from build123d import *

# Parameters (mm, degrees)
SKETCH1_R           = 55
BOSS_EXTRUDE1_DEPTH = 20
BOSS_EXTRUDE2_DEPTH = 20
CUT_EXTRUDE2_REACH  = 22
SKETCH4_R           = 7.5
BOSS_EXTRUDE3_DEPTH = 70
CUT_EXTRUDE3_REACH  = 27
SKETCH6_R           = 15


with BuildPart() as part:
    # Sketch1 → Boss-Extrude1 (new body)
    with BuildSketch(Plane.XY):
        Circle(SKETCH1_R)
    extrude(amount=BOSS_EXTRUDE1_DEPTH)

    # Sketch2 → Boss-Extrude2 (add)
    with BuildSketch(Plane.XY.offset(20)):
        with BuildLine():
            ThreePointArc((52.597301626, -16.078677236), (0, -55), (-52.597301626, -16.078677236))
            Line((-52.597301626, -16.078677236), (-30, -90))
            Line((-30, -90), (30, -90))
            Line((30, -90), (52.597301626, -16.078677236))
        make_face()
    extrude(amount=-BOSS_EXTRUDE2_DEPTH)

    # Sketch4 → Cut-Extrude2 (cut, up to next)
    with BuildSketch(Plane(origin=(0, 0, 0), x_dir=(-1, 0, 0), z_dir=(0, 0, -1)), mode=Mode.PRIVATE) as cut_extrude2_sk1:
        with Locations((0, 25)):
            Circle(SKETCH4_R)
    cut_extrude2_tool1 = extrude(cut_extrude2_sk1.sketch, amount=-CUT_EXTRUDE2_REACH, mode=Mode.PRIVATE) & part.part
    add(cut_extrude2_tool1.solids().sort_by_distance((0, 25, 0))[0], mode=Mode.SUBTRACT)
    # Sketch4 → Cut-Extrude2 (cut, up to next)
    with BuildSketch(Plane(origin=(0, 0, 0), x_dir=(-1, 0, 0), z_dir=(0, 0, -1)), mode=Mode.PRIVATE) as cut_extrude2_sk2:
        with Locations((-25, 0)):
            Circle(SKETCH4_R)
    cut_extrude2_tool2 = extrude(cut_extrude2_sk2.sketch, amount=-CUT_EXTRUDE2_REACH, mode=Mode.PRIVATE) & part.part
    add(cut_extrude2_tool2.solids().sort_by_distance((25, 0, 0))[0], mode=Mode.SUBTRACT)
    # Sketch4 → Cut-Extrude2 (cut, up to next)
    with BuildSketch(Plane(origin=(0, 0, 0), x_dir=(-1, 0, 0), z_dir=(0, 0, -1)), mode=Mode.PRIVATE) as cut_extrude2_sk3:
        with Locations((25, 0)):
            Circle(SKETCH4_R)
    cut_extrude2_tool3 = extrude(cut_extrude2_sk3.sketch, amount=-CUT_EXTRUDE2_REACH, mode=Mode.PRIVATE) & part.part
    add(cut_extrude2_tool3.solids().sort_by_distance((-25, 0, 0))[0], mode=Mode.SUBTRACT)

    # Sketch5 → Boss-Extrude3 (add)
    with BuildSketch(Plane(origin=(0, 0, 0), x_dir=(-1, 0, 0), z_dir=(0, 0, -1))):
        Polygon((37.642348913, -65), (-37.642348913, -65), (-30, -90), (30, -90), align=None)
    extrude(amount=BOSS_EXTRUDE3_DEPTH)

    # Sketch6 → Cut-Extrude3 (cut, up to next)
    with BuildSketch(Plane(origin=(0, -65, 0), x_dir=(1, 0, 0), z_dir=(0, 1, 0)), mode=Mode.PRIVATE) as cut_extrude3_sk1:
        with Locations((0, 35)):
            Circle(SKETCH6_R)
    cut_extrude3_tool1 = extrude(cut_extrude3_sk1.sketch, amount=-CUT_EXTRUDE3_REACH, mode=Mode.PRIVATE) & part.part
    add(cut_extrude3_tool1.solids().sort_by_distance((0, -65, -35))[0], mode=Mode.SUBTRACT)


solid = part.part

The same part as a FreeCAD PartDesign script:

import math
import FreeCAD as App
import Part
import Sketcher
Q = App.Units.Quantity

doc = App.newDocument("Part")
body = doc.addObject("PartDesign::Body", "Body")

sketch1 = body.newObject("Sketcher::SketchObject", "Sketch")
sketch1.AttachmentSupport = (doc.getObject("XY_Plane"), [""])
sketch1.MapMode = "FlatFace"
sketch1.addGeometry(Part.Circle(App.Vector(0, 0, 0), App.Vector(0, 0, 1), 55), False)
sketch1.addConstraint([
    Sketcher.Constraint("Coincident", 0, 3, -1, 1),
    Sketcher.Constraint("Diameter", 0, Q("110 mm")),
])
pad1 = body.newObject("PartDesign::Pad", "Pad")
pad1.Profile = sketch1
pad1.Length = 20

sketch2 = body.newObject("Sketcher::SketchObject", "Sketch001")
sketch2.AttachmentSupport = (doc.getObject("XY_Plane"), [""])
sketch2.MapMode = "FlatFace"
sketch2.AttachmentOffset = App.Placement(App.Vector(0, 0, 20), App.Rotation())
sketch2.addGeometry([
    Part.ArcOfCircle(Part.Circle(App.Vector(0, 0, 0), App.Vector(0, 0, 1), 55), math.radians(-163), math.radians(-17)),
    Part.LineSegment(App.Vector(-53, -16, 0), App.Vector(-30, -90, 0)),
    Part.LineSegment(App.Vector(-30, -90, 0), App.Vector(30, -90, 0)),
    Part.LineSegment(App.Vector(30, -90, 0), App.Vector(53, -16, 0)),
], False)
sketch2.addConstraint([
    Sketcher.Constraint("Tangent", 0, 1, 1, 1),
    Sketcher.Constraint("Coincident", 1, 2, 2, 1),
    Sketcher.Constraint("Coincident", 2, 2, 3, 1),
    Sketcher.Constraint("Tangent", 3, 2, 0, 2),
    Sketcher.Constraint("Horizontal", 2),
    Sketcher.Constraint("Coincident", 0, 3, -1, 1),
    Sketcher.Constraint("Horizontal", 0, 1, 3, 2),
    Sketcher.Constraint("Radius", 0, Q("55 mm")),
    Sketcher.Constraint("DistanceX", 2, 1, 2, 2, Q("60 mm")),
    Sketcher.Constraint("DistanceY", 1, 2, -1, 1, Q("90 mm")),
])
pad2 = body.newObject("PartDesign::Pad", "Pad001")
pad2.Profile = sketch2
pad2.Length = 20
pad2.Reversed = True

sketch3 = body.newObject("Sketcher::SketchObject", "Sketch002")
sketch3.AttachmentSupport = (doc.getObject("XY_Plane"), [""])
sketch3.MapMode = "FlatFace"
sketch3.addGeometry(Part.Circle(App.Vector(0, 25, 0), App.Vector(0, 0, 1), 8), False)
sketch3.addConstraint([
    Sketcher.Constraint("PointOnObject", 0, 3, -2),
    Sketcher.Constraint("Diameter", 0, Q("15 mm")),
    Sketcher.Constraint("DistanceY", -1, 1, 0, 3, Q("25 mm")),
])
pocket1 = body.newObject("PartDesign::Pocket", "Pocket")
pocket1.Profile = sketch3
pocket1.Type = "UpToFirst"
pocket1.Reversed = True

sketch4 = body.newObject("Sketcher::SketchObject", "Sketch003")
sketch4.AttachmentSupport = (doc.getObject("XY_Plane"), [""])
sketch4.MapMode = "FlatFace"
sketch4.addGeometry(Part.Circle(App.Vector(25, 0, 0), App.Vector(0, 0, 1), 8), False)
sketch4.addConstraint([
    Sketcher.Constraint("PointOnObject", 0, 3, -1),
    Sketcher.Constraint("Diameter", 0, Q("15 mm")),
    Sketcher.Constraint("DistanceX", -1, 1, 0, 3, Q("25 mm")),
])
pocket2 = body.newObject("PartDesign::Pocket", "Pocket001")
pocket2.Profile = sketch4
pocket2.Type = "UpToFirst"
pocket2.Reversed = True

sketch5 = body.newObject("Sketcher::SketchObject", "Sketch004")
sketch5.AttachmentSupport = (doc.getObject("XY_Plane"), [""])
sketch5.MapMode = "FlatFace"
sketch5.addGeometry(Part.Circle(App.Vector(-25, 0, 0), App.Vector(0, 0, 1), 8), False)
sketch5.addConstraint([
    Sketcher.Constraint("PointOnObject", 0, 3, -1),
    Sketcher.Constraint("Diameter", 0, Q("15 mm")),
    Sketcher.Constraint("DistanceX", 0, 3, -1, 1, Q("25 mm")),
])
pocket3 = body.newObject("PartDesign::Pocket", "Pocket002")
pocket3.Profile = sketch5
pocket3.Type = "UpToFirst"
pocket3.Reversed = True

sketch6 = body.newObject("Sketcher::SketchObject", "Sketch005")
sketch6.AttachmentSupport = (doc.getObject("XY_Plane"), [""])
sketch6.MapMode = "FlatFace"
sketch6.addGeometry([
    Part.LineSegment(App.Vector(-38, -65, 0), App.Vector(38, -65, 0)),
    Part.LineSegment(App.Vector(38, -65, 0), App.Vector(30, -90, 0)),
    Part.LineSegment(App.Vector(30, -90, 0), App.Vector(-30, -90, 0)),
    Part.LineSegment(App.Vector(-30, -90, 0), App.Vector(-38, -65, 0)),
], False)
sketch6.addConstraint([
    Sketcher.Constraint("Coincident", 0, 2, 1, 1),
    Sketcher.Constraint("Coincident", 1, 2, 2, 1),
    Sketcher.Constraint("Coincident", 2, 2, 3, 1),
    Sketcher.Constraint("Coincident", 3, 2, 0, 1),
    Sketcher.Constraint("Horizontal", 0),
    Sketcher.Constraint("Horizontal", 2),
    Sketcher.Constraint("Equal", 1, 3),
    Sketcher.Constraint("DistanceX", 2, 2, 2, 1, Q("60 mm")),
    Sketcher.Constraint("DistanceY", 0, 2, -1, 1, Q("65 mm")),
    Sketcher.Constraint("DistanceX", -1, 1, 1, 2, Q("30 mm")),
    Sketcher.Constraint("DistanceY", 1, 2, -1, 1, Q("90 mm")),
    Sketcher.Constraint("DistanceX", 0, 1, 0, 2, Q("75.284698 mm")),
])
pad3 = body.newObject("PartDesign::Pad", "Pad002")
pad3.Profile = sketch6
pad3.Length = 70
pad3.Reversed = True

sketch7 = body.newObject("Sketcher::SketchObject", "Sketch006")
sketch7.AttachmentSupport = (doc.getObject("XZ_Plane"), [""])
sketch7.MapMode = "FlatFace"
sketch7.AttachmentOffset = App.Placement(App.Vector(0, 0, 65), App.Rotation())
sketch7.addGeometry(Part.Circle(App.Vector(0, -35, 0), App.Vector(0, 0, 1), 15), False)
sketch7.addConstraint([
    Sketcher.Constraint("PointOnObject", 0, 3, -2),
    Sketcher.Constraint("Diameter", 0, Q("30 mm")),
    Sketcher.Constraint("DistanceY", 0, 3, -1, 1, Q("35 mm")),
])
pocket4 = body.newObject("PartDesign::Pocket", "Pocket003")
pocket4.Profile = sketch7
pocket4.Type = "UpToFirst"
pocket4.Reversed = True

doc.recompute()
